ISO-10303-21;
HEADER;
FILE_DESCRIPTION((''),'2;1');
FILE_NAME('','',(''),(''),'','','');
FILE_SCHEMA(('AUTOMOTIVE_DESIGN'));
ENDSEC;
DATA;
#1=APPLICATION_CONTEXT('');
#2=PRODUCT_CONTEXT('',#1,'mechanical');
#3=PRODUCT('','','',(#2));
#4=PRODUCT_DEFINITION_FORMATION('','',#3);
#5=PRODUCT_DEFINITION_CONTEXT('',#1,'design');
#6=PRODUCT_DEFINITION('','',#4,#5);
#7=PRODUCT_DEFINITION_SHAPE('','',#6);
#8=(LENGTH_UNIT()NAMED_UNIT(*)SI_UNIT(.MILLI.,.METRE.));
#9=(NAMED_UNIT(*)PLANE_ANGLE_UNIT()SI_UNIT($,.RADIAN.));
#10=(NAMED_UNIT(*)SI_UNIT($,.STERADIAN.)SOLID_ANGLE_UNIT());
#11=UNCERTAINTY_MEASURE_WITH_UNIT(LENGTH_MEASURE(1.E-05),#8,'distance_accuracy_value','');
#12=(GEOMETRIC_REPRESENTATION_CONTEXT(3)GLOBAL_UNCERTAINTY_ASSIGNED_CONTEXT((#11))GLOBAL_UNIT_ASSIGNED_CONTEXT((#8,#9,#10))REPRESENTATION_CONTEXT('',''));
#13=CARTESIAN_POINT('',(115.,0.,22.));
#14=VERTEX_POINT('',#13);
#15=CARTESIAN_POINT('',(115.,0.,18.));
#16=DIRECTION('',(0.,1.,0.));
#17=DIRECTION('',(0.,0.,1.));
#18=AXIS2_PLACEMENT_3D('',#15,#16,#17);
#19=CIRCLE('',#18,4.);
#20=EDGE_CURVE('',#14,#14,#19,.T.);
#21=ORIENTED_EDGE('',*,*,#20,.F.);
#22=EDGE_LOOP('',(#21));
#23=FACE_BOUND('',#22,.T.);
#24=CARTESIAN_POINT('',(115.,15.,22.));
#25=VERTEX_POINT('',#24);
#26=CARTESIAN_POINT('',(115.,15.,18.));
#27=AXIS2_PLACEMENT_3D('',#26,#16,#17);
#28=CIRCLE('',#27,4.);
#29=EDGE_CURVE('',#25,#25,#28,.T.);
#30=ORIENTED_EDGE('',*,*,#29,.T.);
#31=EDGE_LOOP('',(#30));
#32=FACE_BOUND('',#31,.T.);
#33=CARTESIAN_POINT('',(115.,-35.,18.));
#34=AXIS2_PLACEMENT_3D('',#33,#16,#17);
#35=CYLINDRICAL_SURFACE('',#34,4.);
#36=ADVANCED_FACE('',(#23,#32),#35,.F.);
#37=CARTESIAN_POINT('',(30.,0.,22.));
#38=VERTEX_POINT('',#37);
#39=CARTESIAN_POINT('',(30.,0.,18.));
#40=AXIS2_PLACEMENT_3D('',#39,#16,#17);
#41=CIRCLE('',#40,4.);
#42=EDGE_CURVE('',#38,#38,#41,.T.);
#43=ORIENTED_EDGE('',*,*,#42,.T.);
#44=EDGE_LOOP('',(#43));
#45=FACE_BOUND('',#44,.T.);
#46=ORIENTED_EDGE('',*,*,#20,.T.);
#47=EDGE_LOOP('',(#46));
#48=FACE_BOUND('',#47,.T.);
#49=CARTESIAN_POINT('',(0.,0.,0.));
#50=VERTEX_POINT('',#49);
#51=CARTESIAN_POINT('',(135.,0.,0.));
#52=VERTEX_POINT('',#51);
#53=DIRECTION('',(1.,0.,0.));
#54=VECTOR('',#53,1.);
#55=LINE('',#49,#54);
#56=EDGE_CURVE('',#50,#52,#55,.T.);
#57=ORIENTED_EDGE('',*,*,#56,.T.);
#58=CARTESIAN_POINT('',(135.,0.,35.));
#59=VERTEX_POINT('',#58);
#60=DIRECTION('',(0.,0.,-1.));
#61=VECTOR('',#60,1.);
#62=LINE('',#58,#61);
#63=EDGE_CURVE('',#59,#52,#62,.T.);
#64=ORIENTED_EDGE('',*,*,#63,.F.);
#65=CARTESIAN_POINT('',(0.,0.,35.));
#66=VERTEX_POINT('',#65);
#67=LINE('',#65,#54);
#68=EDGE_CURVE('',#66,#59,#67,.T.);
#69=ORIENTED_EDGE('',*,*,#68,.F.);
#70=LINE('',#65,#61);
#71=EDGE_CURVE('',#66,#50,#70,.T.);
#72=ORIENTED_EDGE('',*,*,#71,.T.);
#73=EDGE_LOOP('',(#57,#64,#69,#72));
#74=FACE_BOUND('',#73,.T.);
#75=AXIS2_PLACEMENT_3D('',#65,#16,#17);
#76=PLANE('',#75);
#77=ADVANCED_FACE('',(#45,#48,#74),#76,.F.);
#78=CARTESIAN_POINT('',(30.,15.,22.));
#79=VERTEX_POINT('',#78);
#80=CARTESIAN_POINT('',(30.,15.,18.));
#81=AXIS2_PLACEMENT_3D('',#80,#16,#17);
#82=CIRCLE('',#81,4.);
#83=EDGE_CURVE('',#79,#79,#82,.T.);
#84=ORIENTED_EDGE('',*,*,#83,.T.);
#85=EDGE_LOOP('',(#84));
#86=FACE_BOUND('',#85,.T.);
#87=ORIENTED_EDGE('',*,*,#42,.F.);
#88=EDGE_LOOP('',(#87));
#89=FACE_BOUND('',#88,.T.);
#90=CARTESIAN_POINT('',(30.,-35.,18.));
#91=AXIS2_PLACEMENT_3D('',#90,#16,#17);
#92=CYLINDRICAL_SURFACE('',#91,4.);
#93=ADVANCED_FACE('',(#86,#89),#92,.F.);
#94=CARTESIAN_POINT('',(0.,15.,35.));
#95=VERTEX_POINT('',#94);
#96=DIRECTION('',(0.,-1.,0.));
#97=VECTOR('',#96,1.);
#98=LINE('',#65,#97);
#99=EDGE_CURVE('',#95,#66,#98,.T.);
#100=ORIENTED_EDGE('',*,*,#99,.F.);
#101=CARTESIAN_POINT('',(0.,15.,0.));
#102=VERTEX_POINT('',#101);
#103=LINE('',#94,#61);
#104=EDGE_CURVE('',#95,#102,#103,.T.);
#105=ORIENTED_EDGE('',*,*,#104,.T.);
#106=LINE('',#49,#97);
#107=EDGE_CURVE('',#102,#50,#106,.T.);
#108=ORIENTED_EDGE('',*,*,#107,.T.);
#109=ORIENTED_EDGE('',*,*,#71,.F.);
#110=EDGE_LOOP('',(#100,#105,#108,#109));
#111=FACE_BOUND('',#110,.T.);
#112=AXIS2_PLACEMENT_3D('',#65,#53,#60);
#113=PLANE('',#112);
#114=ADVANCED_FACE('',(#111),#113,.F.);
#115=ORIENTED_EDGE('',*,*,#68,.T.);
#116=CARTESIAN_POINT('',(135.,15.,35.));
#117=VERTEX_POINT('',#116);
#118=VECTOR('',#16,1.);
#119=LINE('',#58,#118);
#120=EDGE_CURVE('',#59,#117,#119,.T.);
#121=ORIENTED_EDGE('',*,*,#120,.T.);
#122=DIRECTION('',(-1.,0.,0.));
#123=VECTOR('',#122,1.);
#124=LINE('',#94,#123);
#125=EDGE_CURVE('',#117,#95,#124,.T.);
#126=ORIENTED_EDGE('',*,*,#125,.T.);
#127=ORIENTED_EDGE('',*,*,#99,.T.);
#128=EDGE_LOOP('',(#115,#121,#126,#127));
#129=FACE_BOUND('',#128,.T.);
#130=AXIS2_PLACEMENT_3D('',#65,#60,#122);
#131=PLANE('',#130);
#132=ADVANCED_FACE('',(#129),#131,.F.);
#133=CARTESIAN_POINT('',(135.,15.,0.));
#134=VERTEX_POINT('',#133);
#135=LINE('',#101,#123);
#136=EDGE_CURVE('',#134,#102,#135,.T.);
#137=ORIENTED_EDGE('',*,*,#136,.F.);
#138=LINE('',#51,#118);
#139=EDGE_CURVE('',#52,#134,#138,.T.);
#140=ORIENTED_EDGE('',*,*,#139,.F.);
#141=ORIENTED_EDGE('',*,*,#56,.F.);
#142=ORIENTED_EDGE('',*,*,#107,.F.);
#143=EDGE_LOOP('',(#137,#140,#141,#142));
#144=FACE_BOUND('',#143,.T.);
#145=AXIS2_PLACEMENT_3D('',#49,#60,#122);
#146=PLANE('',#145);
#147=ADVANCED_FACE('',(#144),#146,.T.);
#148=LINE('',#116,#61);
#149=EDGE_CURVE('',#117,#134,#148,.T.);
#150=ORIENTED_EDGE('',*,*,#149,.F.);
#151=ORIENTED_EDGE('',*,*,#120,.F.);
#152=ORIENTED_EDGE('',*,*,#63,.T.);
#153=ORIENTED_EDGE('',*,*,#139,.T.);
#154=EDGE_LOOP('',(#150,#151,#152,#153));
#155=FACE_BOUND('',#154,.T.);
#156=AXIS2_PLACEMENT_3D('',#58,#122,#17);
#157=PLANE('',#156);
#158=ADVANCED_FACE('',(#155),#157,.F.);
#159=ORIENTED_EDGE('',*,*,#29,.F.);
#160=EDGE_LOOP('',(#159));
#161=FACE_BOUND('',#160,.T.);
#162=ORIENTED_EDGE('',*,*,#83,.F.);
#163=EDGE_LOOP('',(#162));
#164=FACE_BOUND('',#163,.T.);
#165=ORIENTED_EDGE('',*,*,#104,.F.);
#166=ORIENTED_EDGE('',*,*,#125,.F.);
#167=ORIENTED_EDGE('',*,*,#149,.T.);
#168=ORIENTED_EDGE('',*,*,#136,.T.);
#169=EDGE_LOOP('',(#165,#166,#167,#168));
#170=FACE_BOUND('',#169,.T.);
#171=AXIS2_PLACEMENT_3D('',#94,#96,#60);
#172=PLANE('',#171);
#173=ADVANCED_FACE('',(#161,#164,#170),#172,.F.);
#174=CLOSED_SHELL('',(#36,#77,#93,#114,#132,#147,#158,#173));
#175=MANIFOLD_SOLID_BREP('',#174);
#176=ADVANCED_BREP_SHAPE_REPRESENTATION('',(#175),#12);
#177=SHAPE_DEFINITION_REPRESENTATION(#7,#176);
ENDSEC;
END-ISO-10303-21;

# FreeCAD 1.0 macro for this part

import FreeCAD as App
import Part
import Sketcher

V = App.Vector


def add_polygon(sketch, points):
    """Adds a closed chain of lines whose ends are joined by coincident constraints."""
    first, n = sketch.GeometryCount, len(points)
    for a, b in zip(points, points[1:] + points[:1]):
        sketch.addGeometry(Part.LineSegment(App.Vector(*a, 0), App.Vector(*b, 0)), False)
    for i in range(n):
        sketch.addConstraint(Sketcher.Constraint("Coincident", first + i, 2, first + (i + 1) % n, 1))

doc = App.newDocument("Part")
body = doc.addObject("PartDesign::Body", "Body")

sketch1 = body.newObject("Sketcher::SketchObject", "Sketch")
sketch1.AttachmentSupport = (doc.getObject("XY_Plane"), [""])
sketch1.MapMode = "FlatFace"
add_polygon(sketch1, [(0, 15), (0, 0), (135, 0), (135, 15)])
sketch1.addConstraint([
    Sketcher.Constraint("Vertical", 0),
    Sketcher.Constraint("Horizontal", 1),
    Sketcher.Constraint("Vertical", 2),
    Sketcher.Constraint("Horizontal", 3),
    Sketcher.Constraint("Coincident", 0, 2, -1, 1),
    Sketcher.Constraint("DistanceX", 1, 1, 1, 2, 135.0),
    Sketcher.Constraint("DistanceY", 0, 2, 0, 1, 15.0),
])
pad1 = body.newObject("PartDesign::Pad", "Pad")
pad1.Profile = sketch1
pad1.Length = 35

sketch2 = body.newObject("Sketcher::SketchObject", "Sketch001")
sketch2.AttachmentSupport = (doc.getObject("XZ_Plane"), [""])
sketch2.MapMode = "FlatFace"
sketch2.AttachmentOffset = App.Placement(V(0, 0, -15), App.Rotation())
sketch2.addGeometry([
    Part.Circle(V(30, 18, 0), V(0, 0, 1), 4),
    Part.Circle(V(115, 18, 0), V(0, 0, 1), 4),
], False)
sketch2.addConstraint([
    Sketcher.Constraint("Equal", 0, 1),
    Sketcher.Constraint("Horizontal", 0, 3, 1, 3),
    Sketcher.Constraint("Diameter", 0, 8.0),
    Sketcher.Constraint("DistanceX", -1, 1, 0, 3, 30.0),
    Sketcher.Constraint("DistanceY", -1, 1, 0, 3, 18.0),
    Sketcher.Constraint("DistanceX", -1, 1, 1, 3, 115.0),
])
pocket1 = body.newObject("PartDesign::Pocket", "Pocket")
pocket1.Profile = sketch2
pocket1.Length = 50
pocket1.Reversed = True

doc.recompute()
